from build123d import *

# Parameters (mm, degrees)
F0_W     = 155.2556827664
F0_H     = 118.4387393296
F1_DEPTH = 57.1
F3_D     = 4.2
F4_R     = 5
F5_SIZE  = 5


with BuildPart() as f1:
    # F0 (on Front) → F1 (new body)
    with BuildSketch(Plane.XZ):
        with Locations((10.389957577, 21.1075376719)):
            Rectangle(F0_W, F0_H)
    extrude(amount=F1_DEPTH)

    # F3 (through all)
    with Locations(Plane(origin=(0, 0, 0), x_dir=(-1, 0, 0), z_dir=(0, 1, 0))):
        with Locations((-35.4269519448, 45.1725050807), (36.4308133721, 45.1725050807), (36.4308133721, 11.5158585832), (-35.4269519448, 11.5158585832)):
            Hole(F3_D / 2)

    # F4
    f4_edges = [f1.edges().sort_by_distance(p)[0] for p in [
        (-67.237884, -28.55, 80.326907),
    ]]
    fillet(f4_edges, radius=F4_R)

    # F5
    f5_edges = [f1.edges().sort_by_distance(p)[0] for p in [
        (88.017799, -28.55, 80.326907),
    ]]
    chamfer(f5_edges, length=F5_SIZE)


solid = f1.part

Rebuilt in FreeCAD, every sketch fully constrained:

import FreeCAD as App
import Part
import Sketcher

V = App.Vector


def edges_at(feature, points):
    """Names of the edges that pass closest to the given points."""
    edges = feature.Shape.Edges
    near = lambda p: min(range(len(edges)), key=lambda i: edges[i].distToShape(Part.Vertex(*p))[0])
    return sorted({f"Edge{near(p) + 1}" for p in points})

doc = App.newDocument("Part")
params = doc.addObject("Spreadsheet::Sheet", "Params")
for row, (alias, value) in enumerate([
    ("pad1_length", "57.1 mm"),
    ("sketch2_diameter", "4.2 mm"),
    ("hole_diameter", "4.2 mm"),
    ("fillet_radius", "5 mm"),
    ("chamfer_size", "5 mm"),
], start=1):
    params.set(f"A{row}", alias)
    params.set(f"B{row}", "=" + value)
    params.setAlias(f"B{row}", alias)

body = doc.addObject("PartDesign::Body", "Body")

sketch1 = doc.addObject("Sketcher::SketchObject", "Sketch")
body.addObject(sketch1)
sketch1.AttachmentSupport = (doc.XZ_Plane, [""])
sketch1.MapMode = "FlatFace"
sketch1.addGeometry(Part.LineSegment(V(-67.237884, 80.326907, 0), V(-67.237884, -38.111832, 0)), False)
sketch1.addGeometry(Part.LineSegment(V(-67.237884, -38.111832, 0), V(88.017799, -38.111832, 0)), False)
sketch1.addGeometry(Part.LineSegment(V(88.017799, -38.111832, 0), V(88.017799, 80.326907, 0)), False)
sketch1.addGeometry(Part.LineSegment(V(88.017799, 80.326907, 0), V(-67.237884, 80.326907, 0)), False)
sketch1.addConstraint(Sketcher.Constraint("Coincident", 0, 2, 1, 1))
sketch1.addConstraint(Sketcher.Constraint("Coincident", 1, 2, 2, 1))
sketch1.addConstraint(Sketcher.Constraint("Coincident", 2, 2, 3, 1))
sketch1.addConstraint(Sketcher.Constraint("Coincident", 3, 2, 0, 1))
sketch1.addConstraint(Sketcher.Constraint("Vertical", 0))
sketch1.addConstraint(Sketcher.Constraint("Horizontal", 1))
sketch1.addConstraint(Sketcher.Constraint("Vertical", 2))
sketch1.addConstraint(Sketcher.Constraint("Horizontal", 3))
sketch1.addConstraint(Sketcher.Constraint("DistanceY", 0, 2, 0, 1, 118.438739))
sketch1.addConstraint(Sketcher.Constraint("DistanceX", -1, 1, 1, 2, 88.017799))
sketch1.addConstraint(Sketcher.Constraint("DistanceX", 1, 1, 1, 2, 155.255683))
sketch1.addConstraint(Sketcher.Constraint("DistanceY", 0, 2, -1, 1, 38.111832))
pad1 = doc.addObject("PartDesign::Pad", "Pad")
body.addObject(pad1)
pad1.Profile = sketch1
pad1.setExpression("Length", "Params.pad1_length")

sketch2 = doc.addObject("Sketcher::SketchObject", "Sketch001")
body.addObject(sketch2)
sketch2.AttachmentSupport = (doc.XZ_Plane, [""])
sketch2.MapMode = "FlatFace"
sketch2.addGeometry(Part.Circle(V(35.426952, 45.172505, 0), V(0, 0, 1), 2.1), False)
sketch2.addGeometry(Part.Circle(V(-36.430813, 45.172505, 0), V(0, 0, 1), 2.1), False)
sketch2.addGeometry(Part.Circle(V(-36.430813, 11.515859, 0), V(0, 0, 1), 2.1), False)
sketch2.addGeometry(Part.Circle(V(35.426952, 11.515859, 0), V(0, 0, 1), 2.1), False)
sketch2.addConstraint(Sketcher.Constraint("Equal", 0, 1))
sketch2.addConstraint(Sketcher.Constraint("Equal", 1, 2))
sketch2.addConstraint(Sketcher.Constraint("Equal", 2, 3))
sketch2.addConstraint(Sketcher.Constraint("Horizontal", 0, 3, 1, 3))
sketch2.addConstraint(Sketcher.Constraint("Horizontal", 2, 3, 3, 3))
sketch2.addConstraint(Sketcher.Constraint("Vertical", 1, 3, 2, 3))
sketch2.addConstraint(Sketcher.Constraint("Vertical", 0, 3, 3, 3))
sketch2.addConstraint(Sketcher.Constraint("Diameter", 0, 4.2))
sketch2.addConstraint(Sketcher.Constraint("DistanceX", -1, 1, 0, 3, 35.426952))
sketch2.addConstraint(Sketcher.Constraint("DistanceY", -1, 1, 2, 3, 11.515859))
sketch2.addConstraint(Sketcher.Constraint("DistanceY", -1, 1, 0, 3, 45.172505))
sketch2.addConstraint(Sketcher.Constraint("DistanceX", 1, 3, -1, 1, 36.430813))
sketch2.setExpression("Constraints[7]", "Params.sketch2_diameter")
doc.recompute()
hole = doc.addObject("PartDesign::Hole", "Hole")
body.addObject(hole)
hole.Profile = sketch2
hole.ThreadType = "None"
hole.setExpression("Diameter", "Params.hole_diameter")
hole.DepthType = "ThroughAll"
hole.Reversed = True
doc.recompute()

fillet = doc.addObject("PartDesign::Fillet", "Fillet")
body.addObject(fillet)
fillet.Base = (hole, edges_at(hole, [(-67.238, -28.55, 80.327)]))
fillet.setExpression("Radius", "Params.fillet_radius")
doc.recompute()

chamfer = doc.addObject("PartDesign::Chamfer", "Chamfer")
body.addObject(chamfer)
chamfer.Base = (fillet, edges_at(fillet, [(88.018, -28.55, 80.327)]))
chamfer.setExpression("Size", "Params.chamfer_size")

doc.recompute()
